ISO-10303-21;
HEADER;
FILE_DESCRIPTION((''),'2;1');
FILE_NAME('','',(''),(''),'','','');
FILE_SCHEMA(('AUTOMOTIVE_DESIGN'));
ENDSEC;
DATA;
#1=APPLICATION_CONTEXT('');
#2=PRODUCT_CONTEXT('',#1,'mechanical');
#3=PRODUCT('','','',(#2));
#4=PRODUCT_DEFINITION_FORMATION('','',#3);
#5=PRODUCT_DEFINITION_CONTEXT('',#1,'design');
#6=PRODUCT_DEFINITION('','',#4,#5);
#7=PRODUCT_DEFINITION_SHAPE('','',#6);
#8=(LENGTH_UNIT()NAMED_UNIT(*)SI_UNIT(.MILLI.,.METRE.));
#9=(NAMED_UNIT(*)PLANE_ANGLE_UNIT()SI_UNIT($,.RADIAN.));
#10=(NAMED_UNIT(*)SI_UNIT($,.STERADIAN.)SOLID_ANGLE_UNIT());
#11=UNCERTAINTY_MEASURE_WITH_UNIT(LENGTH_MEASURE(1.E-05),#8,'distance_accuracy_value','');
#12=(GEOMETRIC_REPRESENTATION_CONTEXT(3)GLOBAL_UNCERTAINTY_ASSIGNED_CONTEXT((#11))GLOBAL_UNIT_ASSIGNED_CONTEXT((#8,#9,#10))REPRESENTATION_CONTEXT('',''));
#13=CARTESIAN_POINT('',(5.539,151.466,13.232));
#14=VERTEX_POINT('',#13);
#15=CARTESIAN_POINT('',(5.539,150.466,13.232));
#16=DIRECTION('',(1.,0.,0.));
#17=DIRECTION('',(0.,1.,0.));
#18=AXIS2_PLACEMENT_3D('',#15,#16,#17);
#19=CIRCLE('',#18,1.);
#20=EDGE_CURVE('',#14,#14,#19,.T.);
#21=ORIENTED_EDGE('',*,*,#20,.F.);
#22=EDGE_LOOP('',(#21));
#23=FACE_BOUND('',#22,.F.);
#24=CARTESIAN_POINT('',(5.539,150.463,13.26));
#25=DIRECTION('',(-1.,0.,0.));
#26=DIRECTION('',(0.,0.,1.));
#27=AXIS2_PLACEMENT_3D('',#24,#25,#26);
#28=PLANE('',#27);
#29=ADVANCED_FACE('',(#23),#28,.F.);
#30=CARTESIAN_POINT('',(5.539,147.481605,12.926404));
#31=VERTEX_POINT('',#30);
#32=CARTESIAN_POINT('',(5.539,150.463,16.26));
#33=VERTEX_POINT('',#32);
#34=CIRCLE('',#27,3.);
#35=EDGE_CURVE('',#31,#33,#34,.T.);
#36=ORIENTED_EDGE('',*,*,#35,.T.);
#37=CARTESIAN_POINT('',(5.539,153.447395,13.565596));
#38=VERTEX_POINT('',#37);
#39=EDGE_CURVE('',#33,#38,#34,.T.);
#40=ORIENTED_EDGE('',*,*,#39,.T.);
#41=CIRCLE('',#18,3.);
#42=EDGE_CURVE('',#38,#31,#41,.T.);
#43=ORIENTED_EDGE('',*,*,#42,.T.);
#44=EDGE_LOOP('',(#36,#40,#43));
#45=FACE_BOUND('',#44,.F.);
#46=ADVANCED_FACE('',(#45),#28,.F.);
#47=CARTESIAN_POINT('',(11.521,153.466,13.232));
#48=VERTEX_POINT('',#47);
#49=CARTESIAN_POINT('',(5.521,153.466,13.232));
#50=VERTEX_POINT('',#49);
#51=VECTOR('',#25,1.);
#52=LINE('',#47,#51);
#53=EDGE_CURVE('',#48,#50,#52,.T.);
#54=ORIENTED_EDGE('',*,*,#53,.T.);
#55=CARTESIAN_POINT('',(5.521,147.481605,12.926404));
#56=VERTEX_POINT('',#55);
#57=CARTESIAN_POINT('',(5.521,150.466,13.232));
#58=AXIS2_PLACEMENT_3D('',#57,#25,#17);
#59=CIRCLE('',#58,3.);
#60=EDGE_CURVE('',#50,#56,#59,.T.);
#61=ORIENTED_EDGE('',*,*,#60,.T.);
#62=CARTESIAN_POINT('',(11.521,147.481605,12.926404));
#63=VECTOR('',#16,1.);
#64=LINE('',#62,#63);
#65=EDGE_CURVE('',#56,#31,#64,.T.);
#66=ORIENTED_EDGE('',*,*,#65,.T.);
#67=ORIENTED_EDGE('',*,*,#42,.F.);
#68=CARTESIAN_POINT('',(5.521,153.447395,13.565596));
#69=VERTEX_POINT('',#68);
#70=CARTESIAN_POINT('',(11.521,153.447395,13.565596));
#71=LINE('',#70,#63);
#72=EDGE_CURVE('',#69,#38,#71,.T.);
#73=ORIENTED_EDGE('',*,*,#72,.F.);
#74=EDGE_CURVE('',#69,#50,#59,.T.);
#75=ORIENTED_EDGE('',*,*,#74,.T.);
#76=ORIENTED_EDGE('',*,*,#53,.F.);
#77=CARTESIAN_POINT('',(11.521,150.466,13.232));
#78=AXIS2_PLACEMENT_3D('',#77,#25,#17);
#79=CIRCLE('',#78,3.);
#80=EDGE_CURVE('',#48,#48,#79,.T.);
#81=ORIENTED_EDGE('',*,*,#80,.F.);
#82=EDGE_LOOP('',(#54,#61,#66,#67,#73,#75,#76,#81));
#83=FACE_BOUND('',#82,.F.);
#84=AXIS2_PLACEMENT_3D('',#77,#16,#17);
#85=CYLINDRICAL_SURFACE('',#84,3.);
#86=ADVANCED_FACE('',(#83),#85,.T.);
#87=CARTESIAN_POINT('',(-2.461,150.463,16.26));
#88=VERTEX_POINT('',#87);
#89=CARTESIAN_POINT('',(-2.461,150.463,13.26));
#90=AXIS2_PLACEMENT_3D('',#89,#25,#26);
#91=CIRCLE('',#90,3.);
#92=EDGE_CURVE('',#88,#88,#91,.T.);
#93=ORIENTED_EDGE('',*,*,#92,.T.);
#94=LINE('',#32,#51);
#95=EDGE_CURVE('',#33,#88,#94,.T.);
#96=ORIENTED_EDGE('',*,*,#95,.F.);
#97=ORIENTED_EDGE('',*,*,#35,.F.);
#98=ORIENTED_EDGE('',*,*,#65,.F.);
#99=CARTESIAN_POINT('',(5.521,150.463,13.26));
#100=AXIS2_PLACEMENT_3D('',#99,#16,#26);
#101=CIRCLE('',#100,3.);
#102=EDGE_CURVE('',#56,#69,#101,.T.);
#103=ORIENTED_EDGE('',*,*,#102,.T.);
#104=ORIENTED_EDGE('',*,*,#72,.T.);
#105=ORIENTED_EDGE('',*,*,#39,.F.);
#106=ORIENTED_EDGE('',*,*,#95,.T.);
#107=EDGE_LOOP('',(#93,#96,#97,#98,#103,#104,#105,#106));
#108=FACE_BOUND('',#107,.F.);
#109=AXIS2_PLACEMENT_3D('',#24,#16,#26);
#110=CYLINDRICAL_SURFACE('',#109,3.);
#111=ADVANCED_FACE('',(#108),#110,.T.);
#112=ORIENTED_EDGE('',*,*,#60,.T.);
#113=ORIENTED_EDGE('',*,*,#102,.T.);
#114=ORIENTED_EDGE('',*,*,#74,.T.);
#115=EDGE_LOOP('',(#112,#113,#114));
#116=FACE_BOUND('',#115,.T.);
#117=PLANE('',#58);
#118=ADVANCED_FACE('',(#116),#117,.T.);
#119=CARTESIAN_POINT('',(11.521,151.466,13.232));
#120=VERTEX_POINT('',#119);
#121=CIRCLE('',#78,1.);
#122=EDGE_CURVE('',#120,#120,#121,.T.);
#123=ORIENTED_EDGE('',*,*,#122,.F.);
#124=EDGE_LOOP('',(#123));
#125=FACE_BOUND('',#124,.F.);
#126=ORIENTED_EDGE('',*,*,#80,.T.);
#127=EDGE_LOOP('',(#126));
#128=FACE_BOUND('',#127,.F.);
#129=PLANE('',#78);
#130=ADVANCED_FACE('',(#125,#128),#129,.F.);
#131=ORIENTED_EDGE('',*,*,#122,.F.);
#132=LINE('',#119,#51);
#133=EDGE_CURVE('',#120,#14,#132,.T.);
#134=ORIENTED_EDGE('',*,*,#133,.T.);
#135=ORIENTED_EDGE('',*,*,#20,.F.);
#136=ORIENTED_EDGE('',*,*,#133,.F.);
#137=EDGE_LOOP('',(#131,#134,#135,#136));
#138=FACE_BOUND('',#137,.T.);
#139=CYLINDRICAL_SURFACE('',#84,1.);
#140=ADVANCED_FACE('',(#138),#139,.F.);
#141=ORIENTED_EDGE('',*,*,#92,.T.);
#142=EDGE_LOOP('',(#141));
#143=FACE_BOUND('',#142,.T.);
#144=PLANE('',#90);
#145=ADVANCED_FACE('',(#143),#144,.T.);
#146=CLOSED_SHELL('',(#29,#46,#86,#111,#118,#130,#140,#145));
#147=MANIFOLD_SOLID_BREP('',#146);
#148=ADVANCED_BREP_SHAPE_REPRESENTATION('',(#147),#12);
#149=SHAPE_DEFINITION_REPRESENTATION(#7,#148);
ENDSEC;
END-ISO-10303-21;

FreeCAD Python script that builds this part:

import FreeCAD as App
import Part
import Sketcher
Q = App.Units.Quantity

doc = App.newDocument("Part")
body = doc.addObject("PartDesign::Body", "Body")

sketch1 = doc.addObject("Sketcher::SketchObject", "Sketch")
body.addObject(sketch1)
sketch1.AttachmentSupport = (doc.YZ_Plane, [""])
sketch1.MapMode = "FlatFace"
sketch1.AttachmentOffset = App.Placement(App.Vector(0, 0, 28.57), App.Rotation())
sketch1.addGeometry(Part.Circle(App.Vector(150.463, 13.35, 0), App.Vector(0, 0, 1), 3), False)
sketch1.addConstraint([
    Sketcher.Constraint("Diameter", 0, Q("6 mm")),
    Sketcher.Constraint("DistanceY", -1, 1, 0, 3, Q("13.35 mm")),
    Sketcher.Constraint("DistanceX", -1, 1, 0, 3, Q("150.463 mm")),
])
pad1 = doc.addObject("PartDesign::Pad", "Pad")
body.addObject(pad1)
pad1.Profile = sketch1
pad1.Length = 8
pad1.Reversed = True
body2 = doc.addObject("PartDesign::Body", "Body001")

sketch2 = doc.addObject("Sketcher::SketchObject", "Sketch001")
body2.addObject(sketch2)
sketch2.AttachmentSupport = (doc.getObject("YZ_Plane001"), [""])
sketch2.MapMode = "FlatFace"
sketch2.AttachmentOffset = App.Placement(App.Vector(0, 0, 34.552), App.Rotation())
sketch2.addGeometry([
    Part.Circle(App.Vector(150.466, 13.322, 0), App.Vector(0, 0, 1), 3),
    Part.Circle(App.Vector(150.466, 13.322, 0), App.Vector(0, 0, 1), 1),
], False)
sketch2.addConstraint([
    Sketcher.Constraint("Coincident", 1, 3, 0, 3),
    Sketcher.Constraint("Diameter", 0, Q("6 mm")),
    Sketcher.Constraint("Diameter", 1, Q("2 mm")),
    Sketcher.Constraint("DistanceX", -1, 1, 0, 3, Q("150.466 mm")),
    Sketcher.Constraint("DistanceY", -1, 1, 0, 3, Q("13.322 mm")),
])
pad2 = doc.addObject("PartDesign::Pad", "Pad001")
body2.addObject(pad2)
pad2.Profile = sketch2
pad2.Length = 6
pad2.Reversed = True
doc.recompute()

boolean = doc.addObject("PartDesign::Boolean", "Boolean")
body2.addObject(boolean)
boolean.Type = "Fuse"
boolean.addObjects([body])
body3 = doc.addObject("PartDesign::Body", "Body002")
doc.recompute()

body2.Placement = App.Placement(App.Vector(-23.031, 0, -0.09), App.Rotation(App.Vector(0, 0, 1), 0))
boolean2 = doc.addObject("PartDesign::Boolean", "Boolean001")
body3.addObject(boolean2)
boolean2.Type = "Fuse"
boolean2.addObjects([body2])

doc.recompute()
